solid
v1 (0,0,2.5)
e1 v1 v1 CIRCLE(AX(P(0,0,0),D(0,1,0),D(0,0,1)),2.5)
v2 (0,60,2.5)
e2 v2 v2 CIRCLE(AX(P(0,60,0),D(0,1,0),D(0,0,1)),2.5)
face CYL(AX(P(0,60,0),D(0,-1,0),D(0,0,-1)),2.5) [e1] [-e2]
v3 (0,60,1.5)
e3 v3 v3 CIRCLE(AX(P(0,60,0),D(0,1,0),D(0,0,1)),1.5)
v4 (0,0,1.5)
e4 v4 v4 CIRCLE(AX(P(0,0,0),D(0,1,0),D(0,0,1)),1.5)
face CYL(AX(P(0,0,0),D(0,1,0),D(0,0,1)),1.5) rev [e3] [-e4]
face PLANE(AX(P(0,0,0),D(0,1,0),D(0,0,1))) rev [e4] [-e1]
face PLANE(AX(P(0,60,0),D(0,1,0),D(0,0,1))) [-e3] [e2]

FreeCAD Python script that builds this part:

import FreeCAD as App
import Part
import Sketcher

V = App.Vector

doc = App.newDocument("Part")
body = doc.addObject("PartDesign::Body", "Body")

# Sketch on XZ plane
sketch1 = body.newObject("Sketcher::SketchObject", "Sketch")
sketch1.AttachmentSupport = (doc.getObject("XZ_Plane"), [""])
sketch1.MapMode = "FlatFace"
sketch1.addGeometry(Part.Circle(V(0, 0, 0), V(0, 0, 1), 2.5), False)
sketch1.addConstraint([
    Sketcher.Constraint("Coincident", 0, 3, -1, 1),
    Sketcher.Constraint("Diameter", 0, 5.0),
])
pad1 = body.newObject("PartDesign::Pad", "Pad")
pad1.Profile = sketch1
pad1.Length = 60
pad1.Reversed = True

# Sketch on XZ plane
sketch2 = body.newObject("Sketcher::SketchObject", "Sketch001")
sketch2.AttachmentSupport = (doc.getObject("XZ_Plane"), [""])
sketch2.MapMode = "FlatFace"
sketch2.AttachmentOffset = App.Placement(V(0, 0, -60), App.Rotation())
sketch2.addGeometry(Part.Circle(V(0, 0, 0), V(0, 0, 1), 1.5), False)
sketch2.addConstraint([
    Sketcher.Constraint("Coincident", 0, 3, -1, 1),
    Sketcher.Constraint("Diameter", 0, 3.0),
])
pocket1 = body.newObject("PartDesign::Pocket", "Pocket")
pocket1.Profile = sketch2
pocket1.Type = "ThroughAll"
pocket1.Reversed = True

doc.recompute()
